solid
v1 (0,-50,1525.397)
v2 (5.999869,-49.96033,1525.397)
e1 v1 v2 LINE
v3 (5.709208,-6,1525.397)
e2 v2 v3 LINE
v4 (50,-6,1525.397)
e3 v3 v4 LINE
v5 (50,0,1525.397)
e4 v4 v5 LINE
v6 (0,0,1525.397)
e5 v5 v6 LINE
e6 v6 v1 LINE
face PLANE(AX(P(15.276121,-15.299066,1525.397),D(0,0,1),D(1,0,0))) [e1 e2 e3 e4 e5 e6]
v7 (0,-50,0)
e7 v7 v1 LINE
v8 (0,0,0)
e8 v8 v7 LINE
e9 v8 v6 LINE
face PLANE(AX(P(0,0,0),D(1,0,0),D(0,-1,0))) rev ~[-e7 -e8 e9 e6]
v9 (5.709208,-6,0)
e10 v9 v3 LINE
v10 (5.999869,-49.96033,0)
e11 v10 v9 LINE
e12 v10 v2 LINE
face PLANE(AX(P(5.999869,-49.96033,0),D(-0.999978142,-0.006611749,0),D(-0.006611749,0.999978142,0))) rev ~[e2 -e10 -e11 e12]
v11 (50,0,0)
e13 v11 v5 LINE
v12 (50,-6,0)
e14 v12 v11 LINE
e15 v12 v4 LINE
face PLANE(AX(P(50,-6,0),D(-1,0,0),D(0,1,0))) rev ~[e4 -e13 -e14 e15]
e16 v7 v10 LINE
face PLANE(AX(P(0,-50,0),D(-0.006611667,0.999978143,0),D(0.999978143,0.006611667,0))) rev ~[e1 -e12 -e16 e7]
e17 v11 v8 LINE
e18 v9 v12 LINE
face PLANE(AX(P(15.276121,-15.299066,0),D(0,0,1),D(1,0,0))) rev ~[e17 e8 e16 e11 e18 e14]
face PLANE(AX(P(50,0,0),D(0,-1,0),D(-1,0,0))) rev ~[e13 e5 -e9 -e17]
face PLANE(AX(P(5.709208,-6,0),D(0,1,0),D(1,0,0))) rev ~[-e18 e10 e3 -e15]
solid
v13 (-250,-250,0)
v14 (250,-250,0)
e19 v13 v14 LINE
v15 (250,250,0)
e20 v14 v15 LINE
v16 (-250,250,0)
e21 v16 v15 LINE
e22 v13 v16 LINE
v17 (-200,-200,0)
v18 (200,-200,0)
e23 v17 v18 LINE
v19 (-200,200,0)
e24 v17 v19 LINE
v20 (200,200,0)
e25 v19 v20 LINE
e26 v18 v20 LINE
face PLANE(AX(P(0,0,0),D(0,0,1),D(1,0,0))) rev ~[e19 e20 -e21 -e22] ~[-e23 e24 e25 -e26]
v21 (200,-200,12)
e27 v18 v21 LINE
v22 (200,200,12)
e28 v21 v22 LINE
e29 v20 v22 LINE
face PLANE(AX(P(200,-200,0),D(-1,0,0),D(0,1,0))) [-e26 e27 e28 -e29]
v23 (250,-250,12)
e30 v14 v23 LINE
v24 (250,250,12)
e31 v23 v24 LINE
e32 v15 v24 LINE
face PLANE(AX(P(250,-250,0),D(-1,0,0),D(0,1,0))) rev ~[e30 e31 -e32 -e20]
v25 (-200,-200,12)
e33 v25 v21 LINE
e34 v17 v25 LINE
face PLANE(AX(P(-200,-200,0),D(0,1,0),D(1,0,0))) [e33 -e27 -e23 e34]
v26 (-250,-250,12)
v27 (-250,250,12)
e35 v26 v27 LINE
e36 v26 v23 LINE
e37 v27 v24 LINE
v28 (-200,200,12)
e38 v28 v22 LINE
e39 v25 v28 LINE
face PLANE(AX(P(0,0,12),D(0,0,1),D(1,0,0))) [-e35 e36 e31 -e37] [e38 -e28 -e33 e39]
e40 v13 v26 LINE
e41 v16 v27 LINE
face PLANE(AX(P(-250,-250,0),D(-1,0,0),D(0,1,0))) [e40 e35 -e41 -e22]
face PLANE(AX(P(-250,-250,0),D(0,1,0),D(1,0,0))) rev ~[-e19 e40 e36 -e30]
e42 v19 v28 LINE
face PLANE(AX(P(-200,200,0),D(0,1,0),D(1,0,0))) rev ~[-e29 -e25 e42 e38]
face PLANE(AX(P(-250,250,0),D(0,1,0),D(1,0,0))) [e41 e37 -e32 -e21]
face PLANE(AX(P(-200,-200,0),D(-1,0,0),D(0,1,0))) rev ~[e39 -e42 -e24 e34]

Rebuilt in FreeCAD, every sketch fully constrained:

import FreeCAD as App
import Part
import Sketcher

V = App.Vector


def add_polygon(sketch, points):
    """Adds a closed chain of lines whose ends are joined by coincident constraints."""
    first, n = sketch.GeometryCount, len(points)
    for a, b in zip(points, points[1:] + points[:1]):
        sketch.addGeometry(Part.LineSegment(App.Vector(*a, 0), App.Vector(*b, 0)), False)
    for i in range(n):
        sketch.addConstraint(Sketcher.Constraint("Coincident", first + i, 2, first + (i + 1) % n, 1))

doc = App.newDocument("Part")
body = doc.addObject("PartDesign::Body", "Body")

# Sketch on XY plane
sketch1 = body.newObject("Sketcher::SketchObject", "Sketch")
sketch1.AttachmentSupport = (doc.getObject("XY_Plane"), [""])
sketch1.MapMode = "FlatFace"
add_polygon(sketch1, [(50, 0), (0, 0), (0, -50), (6, -50), (6, -6), (50, -6)])  # lines 0-5
sketch1.addConstraint([
    Sketcher.Constraint("Horizontal", 0),
    Sketcher.Constraint("Vertical", 1),
    Sketcher.Constraint("Horizontal", 4),
    Sketcher.Constraint("Vertical", 5),
    Sketcher.Constraint("Coincident", 0, 2, -1, 1),
    Sketcher.Constraint("Perpendicular", 2, 3),
    Sketcher.Constraint("Equal", 0, 1),
    Sketcher.Constraint("DistanceX", 0, 2, 0, 1, 50.0),
    Sketcher.Constraint("DistanceY", 5, 1, 5, 2, 6.0),
    Sketcher.Constraint("Distance", 2, 6.0),
    Sketcher.Constraint("DistanceX", 4, 1, 4, 2, 44.290792),
])
pad1 = body.newObject("PartDesign::Pad", "Pad")
pad1.Profile = sketch1
pad1.Length = 1525.397
body2 = doc.addObject("PartDesign::Body", "Body001")

# Sketch on XY plane
sketch2 = body2.newObject("Sketcher::SketchObject", "Sketch001")
sketch2.AttachmentSupport = (doc.getObject("XY_Plane001"), [""])
sketch2.MapMode = "FlatFace"
add_polygon(sketch2, [(-250, 250), (-250, -250), (250, -250), (250, 250)])  # lines 0-3
add_polygon(sketch2, [(200, -200), (-200, -200), (-200, 200), (200, 200)])  # lines 4-7
sketch2.addConstraint([
    Sketcher.Constraint("Vertical", 0),
    Sketcher.Constraint("Horizontal", 1),
    Sketcher.Constraint("Vertical", 2),
    Sketcher.Constraint("Horizontal", 3),
    Sketcher.Constraint("Horizontal", 4),
    Sketcher.Constraint("Vertical", 5),
    Sketcher.Constraint("Horizontal", 6),
    Sketcher.Constraint("Vertical", 7),
    Sketcher.Constraint("Symmetric", 0, 2, 2, 2, -1, 1),
    Sketcher.Constraint("Symmetric", 4, 2, 6, 2, -1, 1),
    Sketcher.Constraint("Equal", 3, 0),
    Sketcher.Constraint("Equal", 6, 5),
    Sketcher.Constraint("DistanceX", 1, 1, 1, 2, 500.0),
    Sketcher.Constraint("DistanceX", 4, 2, 4, 1, 400.0),
])
pad2 = body2.newObject("PartDesign::Pad", "Pad001")
pad2.Profile = sketch2
pad2.Length = 12

doc.recompute()
